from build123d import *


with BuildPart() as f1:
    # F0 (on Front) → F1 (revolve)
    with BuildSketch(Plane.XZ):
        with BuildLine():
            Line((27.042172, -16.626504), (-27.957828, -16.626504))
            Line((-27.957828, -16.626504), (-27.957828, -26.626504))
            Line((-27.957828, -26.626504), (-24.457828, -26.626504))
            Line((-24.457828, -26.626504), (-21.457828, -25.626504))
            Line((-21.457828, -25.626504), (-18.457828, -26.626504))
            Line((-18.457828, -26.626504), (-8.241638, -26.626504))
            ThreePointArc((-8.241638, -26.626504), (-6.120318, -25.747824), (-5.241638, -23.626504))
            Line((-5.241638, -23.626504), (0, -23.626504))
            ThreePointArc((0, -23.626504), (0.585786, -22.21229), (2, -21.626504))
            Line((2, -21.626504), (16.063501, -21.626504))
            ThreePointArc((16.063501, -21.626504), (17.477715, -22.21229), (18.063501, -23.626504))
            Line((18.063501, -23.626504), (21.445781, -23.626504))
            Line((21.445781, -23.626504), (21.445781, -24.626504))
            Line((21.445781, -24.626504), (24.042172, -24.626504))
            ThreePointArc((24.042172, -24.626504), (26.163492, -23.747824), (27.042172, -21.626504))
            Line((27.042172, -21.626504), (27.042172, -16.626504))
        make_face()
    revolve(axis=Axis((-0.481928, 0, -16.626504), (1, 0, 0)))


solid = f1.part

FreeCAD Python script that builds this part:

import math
import FreeCAD as App
import Part
import Sketcher
from FreeCAD import Vector

doc = App.newDocument("Part")
body = doc.addObject("PartDesign::Body", "Body")

# Sketch on XZ plane
sketch1 = body.newObject("Sketcher::SketchObject", "Sketch")
sketch1.AttachmentSupport = (doc.getObject("XZ_Plane"), [""])
sketch1.MapMode = "FlatFace"
sketch1.addGeometry([
    Part.LineSegment(Vector(27.042172, -16.626504, 0), Vector(-27.957828, -16.626504, 0)),  # 0
    Part.LineSegment(Vector(-27.957828, -16.626504, 0), Vector(-27.957828, -26.626504, 0)),  # 1
    Part.LineSegment(Vector(-27.957828, -26.626504, 0), Vector(-24.457828, -26.626504, 0)),  # 2
    Part.LineSegment(Vector(-24.457828, -26.626504, 0), Vector(-21.457828, -25.626504, 0)),  # 3
    Part.LineSegment(Vector(-21.457828, -25.626504, 0), Vector(-18.457828, -26.626504, 0)),  # 4
    Part.LineSegment(Vector(-18.457828, -26.626504, 0), Vector(-8.241638, -26.626504, 0)),  # 5
    Part.ArcOfCircle(Part.Circle(Vector(-8.241639, -23.626503, 0), Vector(0, 0, 1), 3.000001), math.radians(-89.999978), math.radians(-0.000022)),  # 6
    Part.LineSegment(Vector(-5.241638, -23.626504, 0), Vector(0, -23.626504, 0)),  # 7
    Part.ArcOfCircle(Part.Circle(Vector(1.999999, -23.626503, 0), Vector(0, 0, 1), 1.999999), math.radians(89.999957), math.radians(180.000043)),  # 8
    Part.LineSegment(Vector(2, -21.626504, 0), Vector(16.063501, -21.626504, 0)),  # 9
    Part.ArcOfCircle(Part.Circle(Vector(16.063502, -23.626503, 0), Vector(0, 0, 1), 1.999999), math.radians(-0.000043), math.radians(90.000043)),  # 10
    Part.LineSegment(Vector(18.063501, -23.626504, 0), Vector(21.445781, -23.626504, 0)),  # 11
    Part.LineSegment(Vector(21.445781, -23.626504, 0), Vector(21.445781, -24.626504, 0)),  # 12
    Part.LineSegment(Vector(21.445781, -24.626504, 0), Vector(24.042172, -24.626504, 0)),  # 13
    Part.ArcOfCircle(Part.Circle(Vector(24.042171, -21.626503, 0), Vector(0, 0, 1), 3.000001), math.radians(-89.999978), math.radians(-0.000022)),  # 14
    Part.LineSegment(Vector(27.042172, -21.626504, 0), Vector(27.042172, -16.626504, 0)),  # 15
], False)
sketch1.addGeometry(Part.LineSegment(Vector(-27.957828, -16.626504, 0), Vector(27.042172, -16.626504, 0)), True)  # axis
sketch1.addConstraint([
    Sketcher.Constraint("Coincident", 0, 2, 1, 1),
    Sketcher.Constraint("Coincident", 1, 2, 2, 1),
    Sketcher.Constraint("Coincident", 2, 2, 3, 1),
    Sketcher.Constraint("Coincident", 3, 2, 4, 1),
    Sketcher.Constraint("Coincident", 4, 2, 5, 1),
    Sketcher.Constraint("Tangent", 5, 2, 6, 1),
    Sketcher.Constraint("Coincident", 6, 2, 7, 1),
    Sketcher.Constraint("Coincident", 7, 2, 8, 2),
    Sketcher.Constraint("Tangent", 8, 1, 9, 1),
    Sketcher.Constraint("Tangent", 9, 2, 10, 2),
    Sketcher.Constraint("Coincident", 10, 1, 11, 1),
    Sketcher.Constraint("Coincident", 11, 2, 12, 1),
    Sketcher.Constraint("Coincident", 12, 2, 13, 1),
    Sketcher.Constraint("Tangent", 13, 2, 14, 1),
    Sketcher.Constraint("Tangent", 14, 2, 15, 1),
    Sketcher.Constraint("Coincident", 15, 2, 0, 1),
    Sketcher.Constraint("Horizontal", 0),
    Sketcher.Constraint("Vertical", 1),
    Sketcher.Constraint("Horizontal", 2),
    Sketcher.Constraint("Horizontal", 5),
    Sketcher.Constraint("Horizontal", 7),
    Sketcher.Constraint("Horizontal", 9),
    Sketcher.Constraint("Horizontal", 11),
    Sketcher.Constraint("Vertical", 12),
    Sketcher.Constraint("Horizontal", 13),
    Sketcher.Constraint("Vertical", 15),
    Sketcher.Constraint("Horizontal", 16),
    Sketcher.Constraint("Coincident", 16, 1, 0, 2),
    Sketcher.Constraint("Equal", 8, 10),
    Sketcher.Constraint("Equal", 6, 14),
    Sketcher.Constraint("PointOnObject", 7, 2, -2),
    Sketcher.Constraint("Horizontal", 6, 3, 8, 3),
    Sketcher.Constraint("Horizontal", 2, 2, 4, 2),
    Sketcher.Constraint("Horizontal", 10, 3, 6, 2),
    Sketcher.Constraint("Horizontal", 14, 3, 8, 1),
    Sketcher.Constraint("Horizontal", 7, 2, 10, 1),
    Sketcher.Constraint("Vertical", 14, 2, 16, 2),
    Sketcher.Constraint("Equal", 3, 4),
    Sketcher.Constraint("Radius", 6, 3.000001),
    Sketcher.Constraint("Radius", 8, 1.999999),
    Sketcher.Constraint("DistanceX", 0, 2, 0, 1, 55.0),
    Sketcher.Constraint("DistanceY", 1, 2, 1, 1, 10.0),
    Sketcher.Constraint("DistanceX", 2, 1, 2, 2, 3.5),
    Sketcher.Constraint("DistanceX", 2, 2, 3, 2, 3.0),
    Sketcher.Constraint("DistanceY", 2, 2, 3, 2, 1.0),
    Sketcher.Constraint("DistanceX", 9, 1, 9, 2, 14.063501),
    Sketcher.Constraint("DistanceX", 5, 1, 5, 2, 10.21619),
    Sketcher.Constraint("DistanceX", 11, 1, 11, 2, 3.38228),
    Sketcher.Constraint("DistanceX", 13, 1, 13, 2, 2.596391),
    Sketcher.Constraint("DistanceY", 6, 3, -1, 1, 23.626503),
])
revolution = body.newObject("PartDesign::Revolution", "Revolution")
revolution.Profile = sketch1
revolution.ReferenceAxis = (sketch1, ["Axis0"])
revolution.Angle = 360

doc.recompute()
